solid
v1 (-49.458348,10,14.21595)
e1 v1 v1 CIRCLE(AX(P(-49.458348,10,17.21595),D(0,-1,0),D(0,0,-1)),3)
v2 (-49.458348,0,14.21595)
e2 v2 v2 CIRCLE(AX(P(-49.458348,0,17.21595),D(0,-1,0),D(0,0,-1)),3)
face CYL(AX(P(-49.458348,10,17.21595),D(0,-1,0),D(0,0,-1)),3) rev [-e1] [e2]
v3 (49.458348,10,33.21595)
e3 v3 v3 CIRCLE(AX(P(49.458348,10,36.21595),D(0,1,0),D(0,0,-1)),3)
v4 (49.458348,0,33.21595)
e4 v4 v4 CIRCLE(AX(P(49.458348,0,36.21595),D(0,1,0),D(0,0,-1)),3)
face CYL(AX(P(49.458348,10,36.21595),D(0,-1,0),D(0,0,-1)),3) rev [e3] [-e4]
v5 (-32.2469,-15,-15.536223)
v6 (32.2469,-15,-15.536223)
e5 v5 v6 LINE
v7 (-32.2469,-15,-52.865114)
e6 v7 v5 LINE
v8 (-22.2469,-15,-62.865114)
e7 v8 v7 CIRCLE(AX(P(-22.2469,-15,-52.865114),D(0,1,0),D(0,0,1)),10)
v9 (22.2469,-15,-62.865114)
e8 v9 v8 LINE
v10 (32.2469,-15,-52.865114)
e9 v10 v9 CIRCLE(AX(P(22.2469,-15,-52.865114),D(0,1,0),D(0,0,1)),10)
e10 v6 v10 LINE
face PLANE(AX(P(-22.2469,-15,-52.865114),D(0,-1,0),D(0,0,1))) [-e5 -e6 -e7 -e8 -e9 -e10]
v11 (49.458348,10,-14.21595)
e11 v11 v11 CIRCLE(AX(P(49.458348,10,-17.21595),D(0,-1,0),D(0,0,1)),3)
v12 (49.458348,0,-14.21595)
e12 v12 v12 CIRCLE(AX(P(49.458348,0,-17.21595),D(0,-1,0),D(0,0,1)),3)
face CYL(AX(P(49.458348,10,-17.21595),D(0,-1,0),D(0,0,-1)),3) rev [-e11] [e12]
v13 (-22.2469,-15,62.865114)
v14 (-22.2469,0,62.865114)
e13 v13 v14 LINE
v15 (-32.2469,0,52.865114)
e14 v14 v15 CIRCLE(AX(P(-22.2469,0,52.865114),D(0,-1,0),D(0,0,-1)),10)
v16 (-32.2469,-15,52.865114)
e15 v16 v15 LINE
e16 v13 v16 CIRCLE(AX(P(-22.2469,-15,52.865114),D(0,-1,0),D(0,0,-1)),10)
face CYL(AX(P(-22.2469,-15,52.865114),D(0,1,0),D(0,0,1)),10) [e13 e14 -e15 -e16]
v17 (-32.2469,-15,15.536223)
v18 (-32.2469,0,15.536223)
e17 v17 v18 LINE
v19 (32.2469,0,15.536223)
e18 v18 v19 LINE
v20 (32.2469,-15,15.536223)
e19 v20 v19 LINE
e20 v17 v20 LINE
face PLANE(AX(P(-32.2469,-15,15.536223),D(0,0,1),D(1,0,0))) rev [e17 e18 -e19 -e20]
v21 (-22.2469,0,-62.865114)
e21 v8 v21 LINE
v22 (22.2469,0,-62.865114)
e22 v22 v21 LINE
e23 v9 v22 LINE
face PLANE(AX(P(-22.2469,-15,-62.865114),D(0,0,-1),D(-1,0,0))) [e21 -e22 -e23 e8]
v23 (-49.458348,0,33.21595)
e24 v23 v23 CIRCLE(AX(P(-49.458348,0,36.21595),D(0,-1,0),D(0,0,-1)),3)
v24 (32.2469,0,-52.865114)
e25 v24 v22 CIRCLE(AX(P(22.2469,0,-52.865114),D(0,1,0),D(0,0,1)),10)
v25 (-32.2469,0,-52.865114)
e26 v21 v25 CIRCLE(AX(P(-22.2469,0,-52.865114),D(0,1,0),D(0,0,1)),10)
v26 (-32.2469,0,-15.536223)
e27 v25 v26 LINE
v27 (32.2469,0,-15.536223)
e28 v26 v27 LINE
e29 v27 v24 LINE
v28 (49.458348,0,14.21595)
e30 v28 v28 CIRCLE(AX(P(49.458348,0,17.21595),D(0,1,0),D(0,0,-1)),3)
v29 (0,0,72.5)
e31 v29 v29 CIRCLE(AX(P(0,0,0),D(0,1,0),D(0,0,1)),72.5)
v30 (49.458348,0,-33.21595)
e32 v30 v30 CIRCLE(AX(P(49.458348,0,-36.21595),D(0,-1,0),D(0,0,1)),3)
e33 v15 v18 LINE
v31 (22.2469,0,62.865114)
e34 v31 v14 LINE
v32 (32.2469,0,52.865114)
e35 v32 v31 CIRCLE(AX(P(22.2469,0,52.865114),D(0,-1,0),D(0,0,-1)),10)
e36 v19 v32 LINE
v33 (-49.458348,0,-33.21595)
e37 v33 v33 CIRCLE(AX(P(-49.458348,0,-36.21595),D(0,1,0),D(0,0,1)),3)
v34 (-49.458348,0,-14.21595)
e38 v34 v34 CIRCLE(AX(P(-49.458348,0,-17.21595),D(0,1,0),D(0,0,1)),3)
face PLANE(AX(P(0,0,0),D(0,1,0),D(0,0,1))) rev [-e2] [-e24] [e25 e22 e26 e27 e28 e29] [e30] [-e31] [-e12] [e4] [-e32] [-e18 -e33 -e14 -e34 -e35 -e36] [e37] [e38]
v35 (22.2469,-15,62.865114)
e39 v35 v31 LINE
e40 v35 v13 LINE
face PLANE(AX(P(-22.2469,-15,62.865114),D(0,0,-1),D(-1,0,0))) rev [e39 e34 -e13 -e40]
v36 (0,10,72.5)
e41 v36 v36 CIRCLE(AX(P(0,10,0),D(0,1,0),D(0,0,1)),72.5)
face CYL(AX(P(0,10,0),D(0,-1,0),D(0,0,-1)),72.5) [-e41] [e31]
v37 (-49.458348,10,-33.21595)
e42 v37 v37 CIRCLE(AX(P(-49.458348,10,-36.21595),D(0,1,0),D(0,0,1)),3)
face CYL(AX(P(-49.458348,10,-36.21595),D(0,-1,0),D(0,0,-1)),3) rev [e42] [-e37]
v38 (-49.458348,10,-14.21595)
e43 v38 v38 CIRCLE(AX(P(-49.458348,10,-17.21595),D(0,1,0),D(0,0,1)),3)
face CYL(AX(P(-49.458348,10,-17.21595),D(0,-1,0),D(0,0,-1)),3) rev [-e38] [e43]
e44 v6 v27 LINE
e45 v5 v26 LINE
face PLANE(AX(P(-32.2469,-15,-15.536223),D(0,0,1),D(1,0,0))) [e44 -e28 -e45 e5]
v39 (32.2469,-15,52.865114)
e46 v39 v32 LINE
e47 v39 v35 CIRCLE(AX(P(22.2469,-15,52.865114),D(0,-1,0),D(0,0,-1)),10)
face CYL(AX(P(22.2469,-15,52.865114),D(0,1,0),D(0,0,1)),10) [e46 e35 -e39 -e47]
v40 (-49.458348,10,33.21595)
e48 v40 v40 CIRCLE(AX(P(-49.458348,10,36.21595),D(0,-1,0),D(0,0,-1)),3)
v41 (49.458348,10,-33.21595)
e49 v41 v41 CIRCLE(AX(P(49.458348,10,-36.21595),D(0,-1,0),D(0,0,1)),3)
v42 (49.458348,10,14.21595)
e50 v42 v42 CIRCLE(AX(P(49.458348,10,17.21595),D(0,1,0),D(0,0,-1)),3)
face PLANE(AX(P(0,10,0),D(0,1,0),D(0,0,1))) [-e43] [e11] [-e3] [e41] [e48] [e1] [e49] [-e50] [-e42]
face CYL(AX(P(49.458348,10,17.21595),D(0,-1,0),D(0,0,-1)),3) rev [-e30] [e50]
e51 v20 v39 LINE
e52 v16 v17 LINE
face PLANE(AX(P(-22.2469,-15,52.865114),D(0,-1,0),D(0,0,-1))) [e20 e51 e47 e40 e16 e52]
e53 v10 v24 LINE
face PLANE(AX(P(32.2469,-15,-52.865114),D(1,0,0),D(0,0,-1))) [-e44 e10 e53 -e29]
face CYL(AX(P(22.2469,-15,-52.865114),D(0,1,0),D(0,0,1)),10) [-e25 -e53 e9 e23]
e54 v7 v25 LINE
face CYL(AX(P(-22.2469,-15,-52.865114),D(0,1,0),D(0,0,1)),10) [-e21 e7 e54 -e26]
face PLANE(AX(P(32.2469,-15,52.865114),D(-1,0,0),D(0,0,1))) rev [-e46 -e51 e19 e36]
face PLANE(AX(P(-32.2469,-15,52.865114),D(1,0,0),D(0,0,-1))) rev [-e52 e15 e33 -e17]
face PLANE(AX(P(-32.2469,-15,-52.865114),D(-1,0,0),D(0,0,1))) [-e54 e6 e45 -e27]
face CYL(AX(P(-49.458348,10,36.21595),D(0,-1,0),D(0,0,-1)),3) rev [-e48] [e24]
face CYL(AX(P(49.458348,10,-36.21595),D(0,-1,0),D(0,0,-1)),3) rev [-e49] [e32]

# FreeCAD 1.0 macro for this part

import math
import FreeCAD as App
import Part
import Sketcher
Q = App.Units.Quantity

doc = App.newDocument("Part")
body = doc.addObject("PartDesign::Body", "Body")

# Sketch on XZ plane
sketch1 = body.newObject("Sketcher::SketchObject", "Sketch")
sketch1.AttachmentSupport = (doc.getObject("XZ_Plane"), [""])
sketch1.MapMode = "FlatFace"
sketch1.addGeometry(Part.Circle(App.Vector(0, 0, 0), App.Vector(0, 0, 1), 72), False)
sketch1.addConstraint([
    Sketcher.Constraint("Coincident", 0, 3, -1, 1),
    Sketcher.Constraint("Diameter", 0, Q("145 mm")),
])
pad1 = body.newObject("PartDesign::Pad", "Pad")
pad1.Profile = sketch1
pad1.Length = 10
pad1.Reversed = True

# Sketch on XZ plane
sketch2 = body.newObject("Sketcher::SketchObject", "Sketch001")
sketch2.AttachmentSupport = (doc.getObject("XZ_Plane"), [""])
sketch2.MapMode = "FlatFace"
sketch2.addGeometry([
    Part.LineSegment(App.Vector(22, 63, 0), App.Vector(-22, 63, 0)),  # 0
    Part.ArcOfCircle(Part.Circle(App.Vector(-22, 53, 0), App.Vector(0, 0, 1), 10), math.radians(90), math.radians(180)),  # 1
    Part.LineSegment(App.Vector(-32, 53, 0), App.Vector(-32, 16, 0)),  # 2
    Part.LineSegment(App.Vector(-32, 16, 0), App.Vector(32, 16, 0)),  # 3
    Part.LineSegment(App.Vector(32, 16, 0), App.Vector(32, 53, 0)),  # 4
    Part.ArcOfCircle(Part.Circle(App.Vector(22, 53, 0), App.Vector(0, 0, 1), 10), math.radians(0), math.radians(90)),  # 5
], False)
sketch2.addConstraint([
    Sketcher.Constraint("Tangent", 0, 2, 1, 1),
    Sketcher.Constraint("Tangent", 1, 2, 2, 1),
    Sketcher.Constraint("Coincident", 2, 2, 3, 1),
    Sketcher.Constraint("Coincident", 3, 2, 4, 1),
    Sketcher.Constraint("Tangent", 4, 2, 5, 1),
    Sketcher.Constraint("Tangent", 5, 2, 0, 1),
    Sketcher.Constraint("Horizontal", 0),
    Sketcher.Constraint("Vertical", 2),
    Sketcher.Constraint("Horizontal", 3),
    Sketcher.Constraint("Vertical", 4),
    Sketcher.Constraint("Equal", 1, 5),
    Sketcher.Constraint("Radius", 1, Q("10 mm")),
    Sketcher.Constraint("DistanceX", 0, 2, 0, 1, Q("44.493801 mm")),
    Sketcher.Constraint("DistanceY", 2, 2, 2, 1, Q("37.328891 mm")),
    Sketcher.Constraint("DistanceX", 1, 3, -1, 1, Q("22.2469 mm")),
    Sketcher.Constraint("DistanceY", -1, 1, 1, 3, Q("52.865114 mm")),
])
pad2 = body.newObject("PartDesign::Pad", "Pad001")
pad2.Profile = sketch2
pad2.Length = 15
doc.recompute()

mirrored = body.newObject("PartDesign::Mirrored", "Mirrored")
mirrored.Originals = [pad2]
mirrored.MirrorPlane = (doc.getObject("XY_Plane"), [""])
body.Tip = mirrored

# Sketch on XZ plane
sketch3 = body.newObject("Sketcher::SketchObject", "Sketch002")
sketch3.AttachmentSupport = (doc.getObject("XZ_Plane"), [""])
sketch3.MapMode = "FlatFace"
sketch3.addGeometry([
    Part.Circle(App.Vector(-49.5, 36.2, 0), App.Vector(0, 0, 1), 3),
    Part.Circle(App.Vector(-49.5, 17.2, 0), App.Vector(0, 0, 1), 3),
], False)
sketch3.addConstraint([
    Sketcher.Constraint("Equal", 0, 1),
    Sketcher.Constraint("Vertical", 0, 3, 1, 3),
    Sketcher.Constraint("Diameter", 0, Q("6 mm")),
    Sketcher.Constraint("DistanceY", 1, 3, 0, 3, Q("19 mm")),
    Sketcher.Constraint("DistanceY", -1, 1, 0, 3, Q("36.21595 mm")),
    Sketcher.Constraint("DistanceX", 0, 3, -1, 1, Q("49.458348 mm")),
])
pocket1 = body.newObject("PartDesign::Pocket", "Pocket")
pocket1.Profile = sketch3
pocket1.Length = 10
doc.recompute()

mirrored2 = body.newObject("PartDesign::Mirrored", "Mirrored001")
mirrored2.Originals = [pocket1]
mirrored2.MirrorPlane = (doc.getObject("XY_Plane"), [""])
body.Tip = mirrored2
doc.recompute()

mirrored3 = body.newObject("PartDesign::Mirrored", "Mirrored002")
mirrored3.Originals = [pocket1]
mirrored3.MirrorPlane = (doc.getObject("YZ_Plane"), [""])
body.Tip = mirrored3

# Sketch on XZ plane
sketch4 = body.newObject("Sketcher::SketchObject", "Sketch003")
sketch4.AttachmentSupport = (doc.getObject("XZ_Plane"), [""])
sketch4.MapMode = "FlatFace"
sketch4.addGeometry([
    Part.Circle(App.Vector(49.5, -36.2, 0), App.Vector(0, 0, 1), 3),
    Part.Circle(App.Vector(49.5, -17.2, 0), App.Vector(0, 0, 1), 3),
], False)
sketch4.addConstraint([
    Sketcher.Constraint("Equal", 0, 1),
    Sketcher.Constraint("Vertical", 0, 3, 1, 3),
    Sketcher.Constraint("Diameter", 0, Q("6 mm")),
    Sketcher.Constraint("DistanceY", 0, 3, 1, 3, Q("19 mm")),
    Sketcher.Constraint("DistanceY", 0, 3, -1, 1, Q("36.21595 mm")),
    Sketcher.Constraint("DistanceX", -1, 1, 0, 3, Q("49.458348 mm")),
])
pocket2 = body.newObject("PartDesign::Pocket", "Pocket001")
pocket2.Profile = sketch4
pocket2.Length = 10

doc.recompute()
